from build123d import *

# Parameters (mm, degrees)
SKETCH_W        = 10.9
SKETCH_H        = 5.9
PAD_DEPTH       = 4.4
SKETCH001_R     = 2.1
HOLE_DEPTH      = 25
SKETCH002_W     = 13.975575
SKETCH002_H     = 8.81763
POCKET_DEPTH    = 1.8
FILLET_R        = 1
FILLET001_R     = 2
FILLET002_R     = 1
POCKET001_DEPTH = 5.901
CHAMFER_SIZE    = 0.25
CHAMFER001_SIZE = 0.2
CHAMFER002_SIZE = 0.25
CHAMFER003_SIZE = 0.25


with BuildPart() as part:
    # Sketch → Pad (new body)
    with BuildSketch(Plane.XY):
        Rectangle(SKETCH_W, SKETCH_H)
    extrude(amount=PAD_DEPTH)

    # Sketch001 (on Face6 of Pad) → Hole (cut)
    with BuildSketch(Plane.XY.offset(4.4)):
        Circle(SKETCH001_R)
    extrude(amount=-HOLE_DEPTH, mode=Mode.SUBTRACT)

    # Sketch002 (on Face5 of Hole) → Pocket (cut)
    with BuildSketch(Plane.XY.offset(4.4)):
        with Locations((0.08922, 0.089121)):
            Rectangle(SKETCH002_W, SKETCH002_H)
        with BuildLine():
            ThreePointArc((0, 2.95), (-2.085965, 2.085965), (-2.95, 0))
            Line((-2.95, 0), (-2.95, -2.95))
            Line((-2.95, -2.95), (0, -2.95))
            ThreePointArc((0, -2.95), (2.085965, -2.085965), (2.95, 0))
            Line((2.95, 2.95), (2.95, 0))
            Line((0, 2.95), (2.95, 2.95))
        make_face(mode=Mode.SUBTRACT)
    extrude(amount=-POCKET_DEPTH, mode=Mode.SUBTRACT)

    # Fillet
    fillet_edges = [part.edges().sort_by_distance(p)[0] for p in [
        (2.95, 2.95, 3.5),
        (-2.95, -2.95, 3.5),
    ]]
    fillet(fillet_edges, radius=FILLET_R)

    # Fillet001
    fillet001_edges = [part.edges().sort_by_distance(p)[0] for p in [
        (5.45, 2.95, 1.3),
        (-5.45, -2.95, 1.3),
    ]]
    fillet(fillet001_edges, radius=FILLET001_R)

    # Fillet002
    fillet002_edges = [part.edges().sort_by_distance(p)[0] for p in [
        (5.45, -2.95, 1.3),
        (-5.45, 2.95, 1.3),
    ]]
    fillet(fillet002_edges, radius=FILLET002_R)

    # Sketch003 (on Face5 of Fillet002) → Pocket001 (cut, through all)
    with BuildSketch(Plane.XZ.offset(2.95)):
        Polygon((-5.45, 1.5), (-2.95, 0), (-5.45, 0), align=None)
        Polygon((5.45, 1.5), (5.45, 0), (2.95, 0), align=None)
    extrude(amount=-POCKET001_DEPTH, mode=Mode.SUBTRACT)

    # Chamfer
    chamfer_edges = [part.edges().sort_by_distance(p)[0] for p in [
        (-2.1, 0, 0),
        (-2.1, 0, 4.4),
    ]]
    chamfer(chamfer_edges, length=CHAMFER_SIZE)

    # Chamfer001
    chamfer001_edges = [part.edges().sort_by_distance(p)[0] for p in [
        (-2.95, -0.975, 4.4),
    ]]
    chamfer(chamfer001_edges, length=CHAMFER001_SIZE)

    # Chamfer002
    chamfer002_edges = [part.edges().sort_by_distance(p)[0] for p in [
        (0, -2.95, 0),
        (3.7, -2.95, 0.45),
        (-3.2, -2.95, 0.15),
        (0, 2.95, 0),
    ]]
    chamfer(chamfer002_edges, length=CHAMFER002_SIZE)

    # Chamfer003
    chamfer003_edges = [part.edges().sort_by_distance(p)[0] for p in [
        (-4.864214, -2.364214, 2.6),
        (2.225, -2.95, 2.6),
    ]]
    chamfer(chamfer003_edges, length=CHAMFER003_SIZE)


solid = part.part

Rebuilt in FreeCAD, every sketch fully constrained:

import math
import FreeCAD as App
import Part
import Sketcher

V = App.Vector


def edges_at(feature, points):
    """Names of the edges that pass closest to the given points."""
    edges = feature.Shape.Edges
    near = lambda p: min(range(len(edges)), key=lambda i: edges[i].distToShape(Part.Vertex(*p))[0])
    return sorted({f"Edge{near(p) + 1}" for p in points})


def add_polygon(sketch, points):
    """Adds a closed chain of lines whose ends are joined by coincident constraints."""
    first, n = sketch.GeometryCount, len(points)
    for a, b in zip(points, points[1:] + points[:1]):
        sketch.addGeometry(Part.LineSegment(App.Vector(*a, 0), App.Vector(*b, 0)), False)
    for i in range(n):
        sketch.addConstraint(Sketcher.Constraint("Coincident", first + i, 2, first + (i + 1) % n, 1))

doc = App.newDocument("Part")
body = doc.addObject("PartDesign::Body", "Body")

sketch1 = doc.addObject("Sketcher::SketchObject", "Sketch")
body.addObject(sketch1)
sketch1.AttachmentSupport = (doc.XY_Plane, [""])
sketch1.MapMode = "FlatFace"
add_polygon(sketch1, [(-5, 3), (-5, -3), (5, -3), (5, 3)])
sketch1.addConstraint([
    Sketcher.Constraint("Vertical", 0),
    Sketcher.Constraint("Horizontal", 1),
    Sketcher.Constraint("Vertical", 2),
    Sketcher.Constraint("Horizontal", 3),
    Sketcher.Constraint("Symmetric", 0, 2, 2, 2, -1, 1),
    Sketcher.Constraint("DistanceX", 1, 1, 1, 2, 10.9),
    Sketcher.Constraint("DistanceY", 0, 2, 0, 1, 5.9),
])
pad1 = doc.addObject("PartDesign::Pad", "Pad")
body.addObject(pad1)
pad1.Profile = sketch1
pad1.Length = 4.4

sketch2 = doc.addObject("Sketcher::SketchObject", "Sketch001")
body.addObject(sketch2)
sketch2.AttachmentSupport = (doc.XY_Plane, [""])
sketch2.MapMode = "FlatFace"
sketch2.AttachmentOffset = App.Placement(V(0, 0, 4.4), App.Rotation())
sketch2.addGeometry(Part.Circle(V(0, 0, 0), V(0, 0, 1), 2.1), False)
sketch2.addConstraint([
    Sketcher.Constraint("Coincident", 0, 3, -1, 1),
    Sketcher.Constraint("Diameter", 0, 4.2),
])
pocket1 = doc.addObject("PartDesign::Pocket", "Pocket")
body.addObject(pocket1)
pocket1.Profile = sketch2
pocket1.Length = 25

sketch3 = doc.addObject("Sketcher::SketchObject", "Sketch002")
body.addObject(sketch3)
sketch3.AttachmentSupport = (doc.XY_Plane, [""])
sketch3.MapMode = "FlatFace"
sketch3.AttachmentOffset = App.Placement(V(0, 0, 4.4), App.Rotation())
add_polygon(sketch3, [(-6.9, 4.5), (-6.9, -4.3), (7.1, -4.3), (7.1, 4.5)])
sketch3.addGeometry(Part.ArcOfCircle(Part.Circle(V(0, 0, 0), V(0, 0, 1), 3), math.radians(90), math.radians(180)), False)
sketch3.addGeometry(Part.LineSegment(V(0, 3, 0), V(3, 3, 0)), False)
sketch3.addGeometry(Part.LineSegment(V(3, 3, 0), V(3, 0, 0)), False)
sketch3.addGeometry(Part.ArcOfCircle(Part.Circle(V(0, 0, 0), V(0, 0, 1), 3), math.radians(-90), math.radians(0)), False)
sketch3.addGeometry(Part.LineSegment(V(0, -3, 0), V(-3, -3, 0)), False)
sketch3.addGeometry(Part.LineSegment(V(-3, -3, 0), V(-3, 0, 0)), False)
sketch3.addConstraint([
    Sketcher.Constraint("Tangent", 4, 1, 5, 1),
    Sketcher.Constraint("Coincident", 5, 2, 6, 1),
    Sketcher.Constraint("Tangent", 6, 2, 7, 2),
    Sketcher.Constraint("Tangent", 7, 1, 8, 1),
    Sketcher.Constraint("Coincident", 8, 2, 9, 1),
    Sketcher.Constraint("Tangent", 9, 2, 4, 2),
    Sketcher.Constraint("Vertical", 0),
    Sketcher.Constraint("Horizontal", 1),
    Sketcher.Constraint("Vertical", 2),
    Sketcher.Constraint("Horizontal", 3),
    Sketcher.Constraint("Horizontal", 5),
    Sketcher.Constraint("Vertical", 6),
    Sketcher.Constraint("Horizontal", 8),
    Sketcher.Constraint("Vertical", 9),
    Sketcher.Constraint("Coincident", 4, 3, -1, 1),
    Sketcher.Constraint("Coincident", 7, 3, -1, 1),
    Sketcher.Constraint("Equal", 4, 7),
    Sketcher.Constraint("Radius", 4, 2.95),
    Sketcher.Constraint("DistanceY", 0, 2, 0, 1, 8.81763),
    Sketcher.Constraint("DistanceX", 1, 1, 1, 2, 13.975575),
    Sketcher.Constraint("DistanceX", 0, 2, -1, 1, 6.898568),
    Sketcher.Constraint("DistanceY", 0, 2, -1, 1, 4.319694),
])
pocket2 = doc.addObject("PartDesign::Pocket", "Pocket001")
body.addObject(pocket2)
pocket2.Profile = sketch3
pocket2.Length = 1.8
doc.recompute()

fillet = doc.addObject("PartDesign::Fillet", "Fillet")
body.addObject(fillet)
fillet.Base = (pocket2, edges_at(pocket2, [(2.95, 2.95, 3.5), (-2.95, -2.95, 3.5)]))
fillet.Radius = 1
doc.recompute()

fillet2 = doc.addObject("PartDesign::Fillet", "Fillet001")
body.addObject(fillet2)
fillet2.Base = (fillet, edges_at(fillet, [(5.45, 2.95, 1.3), (-5.45, -2.95, 1.3)]))
fillet2.Radius = 2
doc.recompute()

fillet3 = doc.addObject("PartDesign::Fillet", "Fillet002")
body.addObject(fillet3)
fillet3.Base = (fillet2, edges_at(fillet2, [(5.45, -2.95, 1.3), (-5.45, 2.95, 1.3)]))
fillet3.Radius = 1

sketch4 = doc.addObject("Sketcher::SketchObject", "Sketch003")
body.addObject(sketch4)
sketch4.AttachmentSupport = (doc.XZ_Plane, [""])
sketch4.MapMode = "FlatFace"
sketch4.AttachmentOffset = App.Placement(V(0, 0, 2.95), App.Rotation())
add_polygon(sketch4, [(-3, 0), (-5.5, 1.5), (-5.5, 0)])
add_polygon(sketch4, [(5.5, 0), (5.5, 1.5), (3, 0)])
sketch4.addConstraint([
    Sketcher.Constraint("Vertical", 1),
    Sketcher.Constraint("Horizontal", 2),
    Sketcher.Constraint("Vertical", 3),
    Sketcher.Constraint("Horizontal", 5),
    Sketcher.Constraint("Symmetric", 2, 2, 4, 2, -1, 1),
    Sketcher.Constraint("Symmetric", 0, 2, 3, 2, -2),
    Sketcher.Constraint("PointOnObject", 1, 2, -1),
    Sketcher.Constraint("DistanceX", 2, 1, 2, 2, 2.5),
    Sketcher.Constraint("DistanceY", 1, 2, 1, 1, 1.5),
    Sketcher.Constraint("DistanceX", 2, 2, 3, 2, 8.4),
])
pocket3 = doc.addObject("PartDesign::Pocket", "Pocket002")
body.addObject(pocket3)
pocket3.Profile = sketch4
pocket3.Type = "ThroughAll"
doc.recompute()

chamfer = doc.addObject("PartDesign::Chamfer", "Chamfer")
body.addObject(chamfer)
chamfer.Base = (pocket3, edges_at(pocket3, [(-2.1, 0, 0), (-2.1, 0, 4.4)]))
chamfer.Size = 0.25
doc.recompute()

chamfer2 = doc.addObject("PartDesign::Chamfer", "Chamfer001")
body.addObject(chamfer2)
chamfer2.Base = (chamfer, edges_at(chamfer, [(-2.95, -0.975, 4.4)]))
chamfer2.Size = 0.2
doc.recompute()

chamfer3 = doc.addObject("PartDesign::Chamfer", "Chamfer002")
body.addObject(chamfer3)
chamfer3.Base = (chamfer2, edges_at(chamfer2, [
    (0, -2.95, 0),
    (3.7, -2.95, 0.45),
    (-3.2, -2.95, 0.15),
    (0, 2.95, 0),
]))
chamfer3.Size = 0.25
doc.recompute()

chamfer4 = doc.addObject("PartDesign::Chamfer", "Chamfer003")
body.addObject(chamfer4)
chamfer4.Base = (chamfer3, edges_at(chamfer3, [(-4.864, -2.364, 2.6), (2.225, -2.95, 2.6)]))
chamfer4.Size = 0.25

doc.recompute()
